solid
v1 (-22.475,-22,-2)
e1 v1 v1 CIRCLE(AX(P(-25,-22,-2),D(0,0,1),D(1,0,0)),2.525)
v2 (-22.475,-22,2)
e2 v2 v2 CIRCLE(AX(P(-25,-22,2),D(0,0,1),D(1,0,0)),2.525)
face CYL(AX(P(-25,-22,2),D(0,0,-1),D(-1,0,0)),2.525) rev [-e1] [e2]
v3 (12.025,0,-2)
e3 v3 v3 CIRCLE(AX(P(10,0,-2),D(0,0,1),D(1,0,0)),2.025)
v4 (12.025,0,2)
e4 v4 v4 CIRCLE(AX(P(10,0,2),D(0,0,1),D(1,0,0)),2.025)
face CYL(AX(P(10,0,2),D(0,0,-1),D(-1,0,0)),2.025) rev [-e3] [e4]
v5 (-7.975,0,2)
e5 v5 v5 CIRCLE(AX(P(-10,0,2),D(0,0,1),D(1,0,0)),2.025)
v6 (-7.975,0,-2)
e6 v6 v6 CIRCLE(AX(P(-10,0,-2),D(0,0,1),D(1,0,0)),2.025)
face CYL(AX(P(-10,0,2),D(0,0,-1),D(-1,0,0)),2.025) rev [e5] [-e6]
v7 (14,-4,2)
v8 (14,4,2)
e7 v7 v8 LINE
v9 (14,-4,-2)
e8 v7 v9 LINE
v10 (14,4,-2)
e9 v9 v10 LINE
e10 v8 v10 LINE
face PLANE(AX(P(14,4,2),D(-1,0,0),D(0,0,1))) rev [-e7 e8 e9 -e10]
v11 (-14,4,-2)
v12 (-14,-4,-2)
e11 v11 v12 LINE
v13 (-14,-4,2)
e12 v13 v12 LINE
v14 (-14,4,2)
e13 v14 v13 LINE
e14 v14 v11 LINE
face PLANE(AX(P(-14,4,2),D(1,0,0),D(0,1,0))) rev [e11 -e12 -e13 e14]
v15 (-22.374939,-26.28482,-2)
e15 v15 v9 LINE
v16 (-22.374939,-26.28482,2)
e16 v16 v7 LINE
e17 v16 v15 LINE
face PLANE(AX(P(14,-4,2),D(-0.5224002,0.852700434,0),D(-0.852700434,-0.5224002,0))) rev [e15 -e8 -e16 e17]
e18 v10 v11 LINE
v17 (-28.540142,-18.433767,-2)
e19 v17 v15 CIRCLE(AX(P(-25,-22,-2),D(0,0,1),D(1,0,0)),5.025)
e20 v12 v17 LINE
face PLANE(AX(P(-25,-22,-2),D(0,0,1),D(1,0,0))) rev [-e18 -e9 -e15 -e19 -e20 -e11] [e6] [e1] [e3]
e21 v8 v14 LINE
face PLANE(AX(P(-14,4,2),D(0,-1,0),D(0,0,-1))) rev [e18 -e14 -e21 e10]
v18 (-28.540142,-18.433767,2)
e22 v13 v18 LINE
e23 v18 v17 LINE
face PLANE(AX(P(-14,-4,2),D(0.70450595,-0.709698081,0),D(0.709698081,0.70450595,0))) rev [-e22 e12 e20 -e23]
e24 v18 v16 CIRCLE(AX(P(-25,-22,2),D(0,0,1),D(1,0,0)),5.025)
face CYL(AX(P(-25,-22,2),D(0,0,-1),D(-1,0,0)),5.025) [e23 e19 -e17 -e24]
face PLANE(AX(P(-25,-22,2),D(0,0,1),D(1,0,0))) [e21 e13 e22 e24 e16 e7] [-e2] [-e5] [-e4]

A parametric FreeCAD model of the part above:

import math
import FreeCAD as App
import Part
import Sketcher

V = App.Vector
Q = App.Units.Quantity

doc = App.newDocument("Part")
body = doc.addObject("PartDesign::Body", "Body")

# Sketch on XY plane
sketch1 = body.newObject("Sketcher::SketchObject", "Sketch")
sketch1.AttachmentSupport = (doc.getObject("XY_Plane"), [""])
sketch1.MapMode = "FlatFace"
sketch1.addGeometry([
    Part.LineSegment(V(14, 4, 0), V(-14, 4, 0)),  # 0
    Part.LineSegment(V(-14, 4, 0), V(-14, -4, 0)),  # 1
    Part.LineSegment(V(-14, -4, 0), V(-28.5, -18.4, 0)),  # 2
    Part.ArcOfCircle(Part.Circle(V(-25, -22, 0), V(0, 0, 1), 5), math.radians(135), math.radians(301)),  # 3
    Part.LineSegment(V(-22.4, -26.3, 0), V(14, -4, 0)),  # 4
    Part.LineSegment(V(14, -4, 0), V(14, 4, 0)),  # 5
    Part.Circle(V(-25, -22, 0), V(0, 0, 1), 2.5),  # 6
    Part.Circle(V(10, 0, 0), V(0, 0, 1), 2),  # 7
    Part.Circle(V(-10, 0, 0), V(0, 0, 1), 2),  # 8
], False)
sketch1.addConstraint([
    Sketcher.Constraint("Coincident", 0, 2, 1, 1),
    Sketcher.Constraint("Coincident", 1, 2, 2, 1),
    Sketcher.Constraint("Tangent", 2, 2, 3, 1),
    Sketcher.Constraint("Tangent", 3, 2, 4, 1),
    Sketcher.Constraint("Coincident", 4, 2, 5, 1),
    Sketcher.Constraint("Coincident", 5, 2, 0, 1),
    Sketcher.Constraint("Horizontal", 0),
    Sketcher.Constraint("Vertical", 1),
    Sketcher.Constraint("Vertical", 5),
    Sketcher.Constraint("Coincident", 6, 3, 3, 3),
    Sketcher.Constraint("Equal", 7, 8),
    Sketcher.Constraint("Symmetric", 7, 3, 8, 3, -1, 1),
    Sketcher.Constraint("Symmetric", 0, 2, 4, 2, -1, 1),
    Sketcher.Constraint("PointOnObject", 7, 3, -1),
    Sketcher.Constraint("Horizontal", 1, 2, 4, 2),
    Sketcher.Constraint("Diameter", 6, Q("5.05 mm")),
    Sketcher.Constraint("Diameter", 7, Q("4.05 mm")),
    Sketcher.Constraint("DistanceX", 0, 2, 0, 1, Q("28 mm")),
    Sketcher.Constraint("DistanceY", 1, 2, 1, 1, Q("8 mm")),
    Sketcher.Constraint("DistanceX", 3, 3, -1, 1, Q("25 mm")),
    Sketcher.Constraint("DistanceY", 3, 3, -1, 1, Q("22 mm")),
    Sketcher.Constraint("DistanceX", -1, 1, 7, 3, Q("10 mm")),
    Sketcher.Constraint("Radius", 3, Q("5.025 mm")),
])
pad1 = body.newObject("PartDesign::Pad", "Pad")
pad1.Profile = sketch1
pad1.Length = 4
pad1.Midplane = True

doc.recompute()
